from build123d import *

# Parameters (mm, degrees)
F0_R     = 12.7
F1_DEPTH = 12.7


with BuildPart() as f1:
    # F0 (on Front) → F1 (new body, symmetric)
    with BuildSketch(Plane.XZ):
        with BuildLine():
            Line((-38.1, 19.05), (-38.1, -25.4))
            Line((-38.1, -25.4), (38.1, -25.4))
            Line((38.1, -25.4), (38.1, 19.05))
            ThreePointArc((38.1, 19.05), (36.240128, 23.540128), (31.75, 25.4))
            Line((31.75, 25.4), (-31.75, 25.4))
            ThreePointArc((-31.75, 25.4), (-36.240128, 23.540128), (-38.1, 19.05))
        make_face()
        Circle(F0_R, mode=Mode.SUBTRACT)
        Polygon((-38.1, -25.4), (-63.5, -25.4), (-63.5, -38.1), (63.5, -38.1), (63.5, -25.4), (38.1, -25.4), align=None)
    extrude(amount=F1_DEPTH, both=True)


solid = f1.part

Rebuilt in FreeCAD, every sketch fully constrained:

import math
import FreeCAD as App
import Part
import Sketcher
from FreeCAD import Vector
Q = App.Units.Quantity

doc = App.newDocument("Part")
params = doc.addObject("Spreadsheet::Sheet", "Params")
for row, (alias, value) in enumerate([
    ("sketch1_diameter", "1 in"),
    ("sketch1_width", "1 in"),
    ("sketch1_width2", "5 in"),
    ("sketch1_radius", "0.25 in"),
    ("sketch1_height", "0.5 in"),
    ("pad1_length", "1 in"),
], start=1):
    params.set(f"A{row}", alias)
    params.set(f"B{row}", "=" + value)
    params.setAlias(f"B{row}", alias)

body = doc.addObject("PartDesign::Body", "Body")

# Sketch on XZ plane
sketch1 = body.newObject("Sketcher::SketchObject", "Sketch")
sketch1.AttachmentSupport = (doc.getObject("XZ_Plane"), [""])
sketch1.MapMode = "FlatFace"
sketch1.addGeometry([
    Part.LineSegment(Vector(-38, 19, 0), Vector(-38, -25, 0)),  # 0
    Part.LineSegment(Vector(-38, -25, 0), Vector(-64, -25, 0)),  # 1
    Part.LineSegment(Vector(-64, -25, 0), Vector(-64, -38, 0)),  # 2
    Part.LineSegment(Vector(-64, -38, 0), Vector(64, -38, 0)),  # 3
    Part.LineSegment(Vector(64, -38, 0), Vector(64, -25, 0)),  # 4
    Part.LineSegment(Vector(64, -25, 0), Vector(38, -25, 0)),  # 5
    Part.LineSegment(Vector(38, -25, 0), Vector(38, 19, 0)),  # 6
    Part.ArcOfCircle(Part.Circle(Vector(32, 19, 0), Vector(0, 0, 1), 6), math.radians(0), math.radians(90)),  # 7
    Part.LineSegment(Vector(32, 25, 0), Vector(-32, 25, 0)),  # 8
    Part.ArcOfCircle(Part.Circle(Vector(-32, 19, 0), Vector(0, 0, 1), 6), math.radians(90), math.radians(180)),  # 9
    Part.Circle(Vector(0, 0, 0), Vector(0, 0, 1), 13),  # 10
], False)
sketch1.addConstraint([
    Sketcher.Constraint("Coincident", 0, 2, 1, 1),
    Sketcher.Constraint("Coincident", 1, 2, 2, 1),
    Sketcher.Constraint("Coincident", 2, 2, 3, 1),
    Sketcher.Constraint("Coincident", 3, 2, 4, 1),
    Sketcher.Constraint("Coincident", 4, 2, 5, 1),
    Sketcher.Constraint("Coincident", 5, 2, 6, 1),
    Sketcher.Constraint("Tangent", 6, 2, 7, 1),
    Sketcher.Constraint("Tangent", 7, 2, 8, 1),
    Sketcher.Constraint("Tangent", 8, 2, 9, 1),
    Sketcher.Constraint("Tangent", 9, 2, 0, 1),
    Sketcher.Constraint("Vertical", 0),
    Sketcher.Constraint("Horizontal", 1),
    Sketcher.Constraint("Vertical", 2),
    Sketcher.Constraint("Horizontal", 3),
    Sketcher.Constraint("Vertical", 4),
    Sketcher.Constraint("Horizontal", 5),
    Sketcher.Constraint("Vertical", 6),
    Sketcher.Constraint("Horizontal", 8),
    Sketcher.Constraint("Coincident", 10, 3, -1, 1),
    Sketcher.Constraint("Equal", 7, 9),
    Sketcher.Constraint("Symmetric", 1, 2, 4, 2, -2),
    Sketcher.Constraint("Equal", 1, 5),
    Sketcher.Constraint("Diameter", 10, Q("1 in")),
    Sketcher.Constraint("DistanceX", 1, 2, 1, 1, Q("1 in")),
    Sketcher.Constraint("DistanceX", 3, 1, 3, 2, Q("5 in")),
    Sketcher.Constraint("Radius", 7, Q("0.25 in")),
    Sketcher.Constraint("DistanceY", 2, 2, 2, 1, Q("0.5 in")),
    Sketcher.Constraint("DistanceY", 0, 2, -1, 1, Q("1 in")),
    Sketcher.Constraint("DistanceY", -1, 1, 7, 2, Q("1 in")),
])
sketch1.setExpression("Constraints[22]", "Params.sketch1_diameter")
sketch1.setExpression("Constraints[23]", "Params.sketch1_width")
sketch1.setExpression("Constraints[24]", "Params.sketch1_width2")
sketch1.setExpression("Constraints[25]", "Params.sketch1_radius")
sketch1.setExpression("Constraints[26]", "Params.sketch1_height")
pad1 = body.newObject("PartDesign::Pad", "Pad")
pad1.Profile = sketch1
pad1.setExpression("Length", "Params.pad1_length")
pad1.Midplane = True

doc.recompute()
